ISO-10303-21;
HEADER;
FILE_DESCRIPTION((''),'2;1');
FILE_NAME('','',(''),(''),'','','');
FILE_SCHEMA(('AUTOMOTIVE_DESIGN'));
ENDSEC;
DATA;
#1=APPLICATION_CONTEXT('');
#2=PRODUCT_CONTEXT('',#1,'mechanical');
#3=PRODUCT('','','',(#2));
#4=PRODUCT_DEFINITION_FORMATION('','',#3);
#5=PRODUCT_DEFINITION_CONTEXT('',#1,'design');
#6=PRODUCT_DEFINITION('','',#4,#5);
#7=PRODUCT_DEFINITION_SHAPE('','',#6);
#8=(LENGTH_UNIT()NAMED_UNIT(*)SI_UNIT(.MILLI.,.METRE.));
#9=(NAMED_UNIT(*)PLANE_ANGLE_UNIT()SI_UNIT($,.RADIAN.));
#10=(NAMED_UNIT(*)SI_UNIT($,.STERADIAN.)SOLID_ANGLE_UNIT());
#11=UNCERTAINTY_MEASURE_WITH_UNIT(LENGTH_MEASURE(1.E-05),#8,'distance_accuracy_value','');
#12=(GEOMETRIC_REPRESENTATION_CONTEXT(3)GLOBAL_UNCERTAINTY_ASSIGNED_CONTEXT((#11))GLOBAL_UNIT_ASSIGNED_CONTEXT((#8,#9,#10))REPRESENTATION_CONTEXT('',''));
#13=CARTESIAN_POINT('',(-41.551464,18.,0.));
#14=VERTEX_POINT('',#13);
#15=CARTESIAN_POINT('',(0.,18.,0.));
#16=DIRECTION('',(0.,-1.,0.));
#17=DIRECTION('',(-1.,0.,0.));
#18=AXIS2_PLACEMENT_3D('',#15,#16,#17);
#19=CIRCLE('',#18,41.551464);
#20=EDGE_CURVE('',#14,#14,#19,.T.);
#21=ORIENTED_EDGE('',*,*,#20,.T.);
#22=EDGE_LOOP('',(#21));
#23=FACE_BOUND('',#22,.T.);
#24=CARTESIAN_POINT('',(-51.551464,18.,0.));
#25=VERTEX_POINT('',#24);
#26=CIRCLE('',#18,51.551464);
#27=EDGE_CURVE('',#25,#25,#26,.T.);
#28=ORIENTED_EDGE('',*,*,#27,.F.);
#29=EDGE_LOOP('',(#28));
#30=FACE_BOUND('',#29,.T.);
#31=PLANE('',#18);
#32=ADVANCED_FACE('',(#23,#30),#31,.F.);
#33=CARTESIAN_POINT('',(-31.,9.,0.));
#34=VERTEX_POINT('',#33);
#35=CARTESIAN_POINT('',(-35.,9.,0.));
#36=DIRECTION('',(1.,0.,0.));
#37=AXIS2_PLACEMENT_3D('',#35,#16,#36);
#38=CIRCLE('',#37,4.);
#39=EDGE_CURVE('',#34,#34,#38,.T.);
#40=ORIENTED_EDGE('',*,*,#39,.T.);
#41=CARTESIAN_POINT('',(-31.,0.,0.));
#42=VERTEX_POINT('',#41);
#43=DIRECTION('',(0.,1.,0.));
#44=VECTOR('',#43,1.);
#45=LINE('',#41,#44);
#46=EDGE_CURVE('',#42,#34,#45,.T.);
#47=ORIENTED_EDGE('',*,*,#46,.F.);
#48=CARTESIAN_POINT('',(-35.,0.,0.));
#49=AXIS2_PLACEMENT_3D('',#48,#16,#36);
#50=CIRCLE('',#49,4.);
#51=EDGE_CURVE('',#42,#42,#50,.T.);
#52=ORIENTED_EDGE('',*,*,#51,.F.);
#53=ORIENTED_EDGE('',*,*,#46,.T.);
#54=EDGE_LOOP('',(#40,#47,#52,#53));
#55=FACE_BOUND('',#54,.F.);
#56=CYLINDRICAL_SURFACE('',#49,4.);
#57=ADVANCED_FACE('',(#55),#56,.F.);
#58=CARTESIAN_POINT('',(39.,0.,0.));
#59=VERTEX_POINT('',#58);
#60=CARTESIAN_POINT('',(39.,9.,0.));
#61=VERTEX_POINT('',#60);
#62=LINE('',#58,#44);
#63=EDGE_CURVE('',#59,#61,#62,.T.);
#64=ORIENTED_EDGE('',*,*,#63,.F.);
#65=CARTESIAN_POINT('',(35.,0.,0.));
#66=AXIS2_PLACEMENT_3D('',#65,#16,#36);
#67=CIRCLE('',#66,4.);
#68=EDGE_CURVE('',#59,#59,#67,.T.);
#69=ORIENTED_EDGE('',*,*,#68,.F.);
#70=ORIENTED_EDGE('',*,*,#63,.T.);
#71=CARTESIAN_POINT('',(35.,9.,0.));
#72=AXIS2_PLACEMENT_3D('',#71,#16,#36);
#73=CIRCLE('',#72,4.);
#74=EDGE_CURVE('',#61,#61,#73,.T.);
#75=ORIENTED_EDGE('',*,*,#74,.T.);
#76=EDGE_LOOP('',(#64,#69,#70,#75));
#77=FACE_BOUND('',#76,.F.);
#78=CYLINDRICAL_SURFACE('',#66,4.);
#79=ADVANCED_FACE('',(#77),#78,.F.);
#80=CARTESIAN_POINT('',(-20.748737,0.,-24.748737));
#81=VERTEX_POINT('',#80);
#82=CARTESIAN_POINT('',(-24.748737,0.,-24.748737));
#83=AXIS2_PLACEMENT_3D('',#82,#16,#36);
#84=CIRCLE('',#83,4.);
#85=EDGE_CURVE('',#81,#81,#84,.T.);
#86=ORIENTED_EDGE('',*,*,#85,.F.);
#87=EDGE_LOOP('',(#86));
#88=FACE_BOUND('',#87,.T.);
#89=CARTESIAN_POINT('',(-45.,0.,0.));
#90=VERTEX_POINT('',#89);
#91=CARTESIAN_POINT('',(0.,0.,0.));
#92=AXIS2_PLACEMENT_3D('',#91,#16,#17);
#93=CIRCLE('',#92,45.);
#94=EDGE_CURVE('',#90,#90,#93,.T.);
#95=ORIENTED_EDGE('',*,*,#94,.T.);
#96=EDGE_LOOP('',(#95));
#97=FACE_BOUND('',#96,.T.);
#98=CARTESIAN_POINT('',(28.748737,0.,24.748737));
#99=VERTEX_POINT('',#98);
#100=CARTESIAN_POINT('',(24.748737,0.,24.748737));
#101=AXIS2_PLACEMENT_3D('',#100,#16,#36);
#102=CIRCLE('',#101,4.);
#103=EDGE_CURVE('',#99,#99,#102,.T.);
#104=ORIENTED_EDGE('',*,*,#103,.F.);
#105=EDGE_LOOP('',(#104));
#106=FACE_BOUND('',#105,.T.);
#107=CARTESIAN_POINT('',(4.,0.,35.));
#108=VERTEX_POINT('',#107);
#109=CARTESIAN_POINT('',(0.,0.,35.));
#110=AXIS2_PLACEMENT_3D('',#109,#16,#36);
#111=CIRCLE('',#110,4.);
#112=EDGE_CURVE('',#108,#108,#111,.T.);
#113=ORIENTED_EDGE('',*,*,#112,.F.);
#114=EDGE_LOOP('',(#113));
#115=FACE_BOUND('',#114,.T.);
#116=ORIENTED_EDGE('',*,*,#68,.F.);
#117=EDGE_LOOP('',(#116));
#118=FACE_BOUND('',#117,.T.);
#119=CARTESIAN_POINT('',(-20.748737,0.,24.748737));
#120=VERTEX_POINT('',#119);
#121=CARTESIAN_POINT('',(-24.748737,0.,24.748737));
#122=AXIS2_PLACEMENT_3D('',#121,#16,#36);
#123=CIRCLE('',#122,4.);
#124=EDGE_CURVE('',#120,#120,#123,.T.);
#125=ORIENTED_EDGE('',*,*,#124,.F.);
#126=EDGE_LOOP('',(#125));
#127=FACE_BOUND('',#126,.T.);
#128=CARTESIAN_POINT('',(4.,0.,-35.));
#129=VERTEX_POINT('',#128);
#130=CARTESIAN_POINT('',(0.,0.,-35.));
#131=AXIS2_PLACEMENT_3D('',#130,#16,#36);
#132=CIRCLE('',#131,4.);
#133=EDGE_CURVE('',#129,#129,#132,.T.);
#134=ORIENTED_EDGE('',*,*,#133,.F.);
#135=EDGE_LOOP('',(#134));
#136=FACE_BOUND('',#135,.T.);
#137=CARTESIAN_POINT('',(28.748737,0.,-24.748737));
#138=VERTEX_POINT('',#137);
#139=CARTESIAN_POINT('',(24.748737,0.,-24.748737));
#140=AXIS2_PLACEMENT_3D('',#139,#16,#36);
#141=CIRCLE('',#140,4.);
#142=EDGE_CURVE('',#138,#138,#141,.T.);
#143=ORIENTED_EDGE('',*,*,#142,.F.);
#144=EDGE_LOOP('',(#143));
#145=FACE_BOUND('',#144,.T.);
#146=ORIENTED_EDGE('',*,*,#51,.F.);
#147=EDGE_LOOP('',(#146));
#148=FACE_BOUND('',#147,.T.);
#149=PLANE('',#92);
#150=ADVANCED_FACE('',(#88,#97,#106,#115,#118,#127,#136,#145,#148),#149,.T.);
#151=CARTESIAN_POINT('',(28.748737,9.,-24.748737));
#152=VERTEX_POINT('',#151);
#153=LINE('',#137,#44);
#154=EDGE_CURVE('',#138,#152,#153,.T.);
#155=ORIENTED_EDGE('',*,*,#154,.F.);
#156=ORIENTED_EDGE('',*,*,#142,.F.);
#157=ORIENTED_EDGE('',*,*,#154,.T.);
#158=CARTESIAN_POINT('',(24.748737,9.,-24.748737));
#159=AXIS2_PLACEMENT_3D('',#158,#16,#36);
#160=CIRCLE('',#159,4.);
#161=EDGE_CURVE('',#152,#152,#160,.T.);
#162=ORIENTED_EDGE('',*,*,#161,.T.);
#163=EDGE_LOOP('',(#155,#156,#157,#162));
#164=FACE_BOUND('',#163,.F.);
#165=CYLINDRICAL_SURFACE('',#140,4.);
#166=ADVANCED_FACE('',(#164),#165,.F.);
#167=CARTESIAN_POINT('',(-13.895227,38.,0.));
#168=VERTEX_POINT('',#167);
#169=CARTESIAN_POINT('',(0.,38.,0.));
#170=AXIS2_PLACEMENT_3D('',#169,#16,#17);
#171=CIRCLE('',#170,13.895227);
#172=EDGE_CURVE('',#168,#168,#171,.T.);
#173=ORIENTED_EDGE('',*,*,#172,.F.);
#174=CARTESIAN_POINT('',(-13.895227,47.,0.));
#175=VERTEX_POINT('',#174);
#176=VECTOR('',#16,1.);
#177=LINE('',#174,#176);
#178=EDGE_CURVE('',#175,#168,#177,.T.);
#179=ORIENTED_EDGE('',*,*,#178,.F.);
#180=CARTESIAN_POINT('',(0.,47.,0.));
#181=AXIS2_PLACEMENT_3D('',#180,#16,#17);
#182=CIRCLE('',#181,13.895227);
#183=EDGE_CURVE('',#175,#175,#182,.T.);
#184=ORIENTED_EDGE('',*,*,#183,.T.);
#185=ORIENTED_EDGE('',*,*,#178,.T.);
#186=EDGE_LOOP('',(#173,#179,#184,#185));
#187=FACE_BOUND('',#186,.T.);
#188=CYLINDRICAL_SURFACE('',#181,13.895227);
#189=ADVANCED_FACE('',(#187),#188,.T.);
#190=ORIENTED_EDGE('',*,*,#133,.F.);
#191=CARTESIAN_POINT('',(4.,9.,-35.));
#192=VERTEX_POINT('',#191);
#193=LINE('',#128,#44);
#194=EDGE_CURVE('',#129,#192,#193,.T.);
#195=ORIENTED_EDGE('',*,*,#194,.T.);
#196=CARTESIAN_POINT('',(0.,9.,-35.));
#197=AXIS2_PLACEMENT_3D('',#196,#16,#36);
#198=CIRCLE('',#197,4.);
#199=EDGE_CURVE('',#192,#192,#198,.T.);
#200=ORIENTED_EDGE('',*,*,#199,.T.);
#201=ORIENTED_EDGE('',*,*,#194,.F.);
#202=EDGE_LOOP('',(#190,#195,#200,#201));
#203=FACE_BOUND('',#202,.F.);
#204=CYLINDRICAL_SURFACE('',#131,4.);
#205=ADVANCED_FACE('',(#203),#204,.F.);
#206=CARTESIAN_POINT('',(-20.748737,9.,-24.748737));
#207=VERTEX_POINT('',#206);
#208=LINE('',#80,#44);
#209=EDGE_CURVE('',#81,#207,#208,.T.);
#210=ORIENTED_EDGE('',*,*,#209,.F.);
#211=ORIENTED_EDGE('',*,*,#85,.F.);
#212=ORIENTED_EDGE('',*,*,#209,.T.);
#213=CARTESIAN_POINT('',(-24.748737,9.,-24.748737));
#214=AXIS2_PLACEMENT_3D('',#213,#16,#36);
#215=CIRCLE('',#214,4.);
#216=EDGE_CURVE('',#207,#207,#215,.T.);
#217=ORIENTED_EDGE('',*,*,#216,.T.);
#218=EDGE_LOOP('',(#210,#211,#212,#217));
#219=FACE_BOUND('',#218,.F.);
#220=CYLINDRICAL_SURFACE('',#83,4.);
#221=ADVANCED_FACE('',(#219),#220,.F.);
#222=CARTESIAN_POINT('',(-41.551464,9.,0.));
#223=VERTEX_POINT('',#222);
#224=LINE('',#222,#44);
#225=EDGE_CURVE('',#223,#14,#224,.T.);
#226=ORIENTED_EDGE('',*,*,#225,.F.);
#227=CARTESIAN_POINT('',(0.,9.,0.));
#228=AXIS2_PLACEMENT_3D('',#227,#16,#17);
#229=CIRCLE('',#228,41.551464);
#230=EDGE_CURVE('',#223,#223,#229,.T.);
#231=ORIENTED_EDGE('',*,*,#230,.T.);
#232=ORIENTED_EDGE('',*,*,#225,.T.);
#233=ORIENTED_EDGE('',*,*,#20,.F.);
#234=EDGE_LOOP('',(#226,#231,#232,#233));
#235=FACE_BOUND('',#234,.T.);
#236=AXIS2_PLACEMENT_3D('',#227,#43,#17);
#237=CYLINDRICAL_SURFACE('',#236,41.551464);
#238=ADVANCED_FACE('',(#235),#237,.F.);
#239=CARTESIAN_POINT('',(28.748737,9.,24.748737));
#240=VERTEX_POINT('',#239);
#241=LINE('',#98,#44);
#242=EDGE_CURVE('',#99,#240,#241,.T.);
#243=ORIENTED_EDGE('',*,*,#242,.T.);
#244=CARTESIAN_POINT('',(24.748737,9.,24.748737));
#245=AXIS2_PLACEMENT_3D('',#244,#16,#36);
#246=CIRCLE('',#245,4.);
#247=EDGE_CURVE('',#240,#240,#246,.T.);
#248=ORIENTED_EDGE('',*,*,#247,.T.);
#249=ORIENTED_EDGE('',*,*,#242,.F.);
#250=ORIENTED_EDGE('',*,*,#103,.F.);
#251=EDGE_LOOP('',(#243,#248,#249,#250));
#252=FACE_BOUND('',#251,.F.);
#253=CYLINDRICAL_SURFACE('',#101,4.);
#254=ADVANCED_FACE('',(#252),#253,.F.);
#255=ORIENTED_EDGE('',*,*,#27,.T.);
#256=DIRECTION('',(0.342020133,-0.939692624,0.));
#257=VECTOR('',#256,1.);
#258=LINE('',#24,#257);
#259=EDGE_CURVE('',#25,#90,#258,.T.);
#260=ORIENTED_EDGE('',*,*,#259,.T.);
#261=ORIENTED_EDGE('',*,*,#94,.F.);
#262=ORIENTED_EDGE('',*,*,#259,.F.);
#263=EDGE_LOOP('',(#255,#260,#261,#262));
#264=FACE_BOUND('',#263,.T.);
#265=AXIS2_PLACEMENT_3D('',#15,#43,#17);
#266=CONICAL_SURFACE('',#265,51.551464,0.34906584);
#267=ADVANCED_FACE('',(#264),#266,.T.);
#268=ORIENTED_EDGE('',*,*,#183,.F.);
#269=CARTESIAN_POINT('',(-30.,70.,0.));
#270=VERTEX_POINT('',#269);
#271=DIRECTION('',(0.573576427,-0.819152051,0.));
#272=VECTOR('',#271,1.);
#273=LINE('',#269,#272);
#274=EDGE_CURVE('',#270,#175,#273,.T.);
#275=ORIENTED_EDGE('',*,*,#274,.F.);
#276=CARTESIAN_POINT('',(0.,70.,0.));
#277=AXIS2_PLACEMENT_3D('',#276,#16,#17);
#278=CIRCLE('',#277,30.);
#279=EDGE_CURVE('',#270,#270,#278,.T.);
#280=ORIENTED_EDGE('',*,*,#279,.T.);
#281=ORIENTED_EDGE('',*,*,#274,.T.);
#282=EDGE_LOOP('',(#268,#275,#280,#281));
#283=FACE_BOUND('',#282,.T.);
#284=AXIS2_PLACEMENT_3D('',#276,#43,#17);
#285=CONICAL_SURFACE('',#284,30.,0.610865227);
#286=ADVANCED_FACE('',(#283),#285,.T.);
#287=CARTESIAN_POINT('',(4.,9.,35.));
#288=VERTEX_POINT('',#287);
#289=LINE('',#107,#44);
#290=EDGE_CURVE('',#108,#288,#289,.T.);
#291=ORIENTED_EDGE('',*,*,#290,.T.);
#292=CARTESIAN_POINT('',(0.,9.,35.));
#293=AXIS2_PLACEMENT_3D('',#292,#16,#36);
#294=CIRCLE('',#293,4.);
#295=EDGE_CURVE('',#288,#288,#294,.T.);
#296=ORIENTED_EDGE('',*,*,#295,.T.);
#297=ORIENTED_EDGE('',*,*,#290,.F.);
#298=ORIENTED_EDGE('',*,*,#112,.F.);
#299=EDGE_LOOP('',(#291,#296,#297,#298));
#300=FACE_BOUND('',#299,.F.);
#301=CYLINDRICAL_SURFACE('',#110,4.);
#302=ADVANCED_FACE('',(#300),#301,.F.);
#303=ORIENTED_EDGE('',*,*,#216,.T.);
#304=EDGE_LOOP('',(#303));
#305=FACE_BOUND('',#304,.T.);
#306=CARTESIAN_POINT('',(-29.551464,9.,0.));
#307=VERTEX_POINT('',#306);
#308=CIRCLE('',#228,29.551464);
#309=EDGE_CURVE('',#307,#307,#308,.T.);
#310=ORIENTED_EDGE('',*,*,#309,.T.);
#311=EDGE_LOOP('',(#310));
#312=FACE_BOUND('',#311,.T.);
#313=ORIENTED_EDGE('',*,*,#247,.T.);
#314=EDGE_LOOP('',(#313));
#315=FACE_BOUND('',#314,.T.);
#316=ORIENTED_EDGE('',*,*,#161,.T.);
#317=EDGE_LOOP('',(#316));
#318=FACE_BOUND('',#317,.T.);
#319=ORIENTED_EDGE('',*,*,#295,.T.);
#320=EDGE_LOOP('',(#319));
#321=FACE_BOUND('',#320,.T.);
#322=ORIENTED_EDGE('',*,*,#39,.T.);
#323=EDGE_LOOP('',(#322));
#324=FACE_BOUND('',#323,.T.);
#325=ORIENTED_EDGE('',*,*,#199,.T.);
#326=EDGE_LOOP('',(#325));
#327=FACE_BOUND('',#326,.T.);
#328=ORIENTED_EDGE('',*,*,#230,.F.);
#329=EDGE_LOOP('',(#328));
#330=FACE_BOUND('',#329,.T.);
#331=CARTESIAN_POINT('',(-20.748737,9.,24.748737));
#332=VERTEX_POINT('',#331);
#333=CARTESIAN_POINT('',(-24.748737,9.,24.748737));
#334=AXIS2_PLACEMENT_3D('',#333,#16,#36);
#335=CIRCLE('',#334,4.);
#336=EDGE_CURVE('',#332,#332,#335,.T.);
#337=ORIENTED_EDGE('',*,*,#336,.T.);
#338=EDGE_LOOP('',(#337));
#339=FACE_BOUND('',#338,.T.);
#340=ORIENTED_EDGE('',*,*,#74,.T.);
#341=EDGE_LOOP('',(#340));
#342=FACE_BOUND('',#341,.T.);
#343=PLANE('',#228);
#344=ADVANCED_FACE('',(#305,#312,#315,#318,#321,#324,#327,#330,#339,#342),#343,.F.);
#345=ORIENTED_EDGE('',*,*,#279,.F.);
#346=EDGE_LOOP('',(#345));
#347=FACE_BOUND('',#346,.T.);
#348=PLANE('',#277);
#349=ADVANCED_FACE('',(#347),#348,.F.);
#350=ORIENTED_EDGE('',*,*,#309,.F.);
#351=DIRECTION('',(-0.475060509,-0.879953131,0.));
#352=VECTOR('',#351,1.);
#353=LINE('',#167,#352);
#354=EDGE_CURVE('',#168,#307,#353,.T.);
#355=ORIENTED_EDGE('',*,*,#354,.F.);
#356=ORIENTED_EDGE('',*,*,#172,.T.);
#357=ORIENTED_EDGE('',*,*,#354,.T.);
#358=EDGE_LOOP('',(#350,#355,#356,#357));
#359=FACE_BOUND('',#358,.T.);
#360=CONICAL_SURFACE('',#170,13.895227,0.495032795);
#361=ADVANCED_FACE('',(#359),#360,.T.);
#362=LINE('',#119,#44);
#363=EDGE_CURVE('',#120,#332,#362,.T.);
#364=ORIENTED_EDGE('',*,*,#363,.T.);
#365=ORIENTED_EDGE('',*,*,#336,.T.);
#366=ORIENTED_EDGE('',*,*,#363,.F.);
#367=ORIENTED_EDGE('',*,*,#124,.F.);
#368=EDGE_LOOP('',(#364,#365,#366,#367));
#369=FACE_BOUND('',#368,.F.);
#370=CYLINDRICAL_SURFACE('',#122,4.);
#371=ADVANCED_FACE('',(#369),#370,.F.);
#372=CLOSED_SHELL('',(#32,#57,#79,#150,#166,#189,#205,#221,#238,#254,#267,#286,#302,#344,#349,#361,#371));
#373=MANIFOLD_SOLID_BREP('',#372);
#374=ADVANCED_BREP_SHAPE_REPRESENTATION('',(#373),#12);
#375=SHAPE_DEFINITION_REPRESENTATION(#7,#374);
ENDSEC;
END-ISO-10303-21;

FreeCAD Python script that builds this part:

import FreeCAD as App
import Part
import Sketcher
Q = App.Units.Quantity


def add_polygon(sketch, points):
    """Adds a closed chain of lines whose ends are joined by coincident constraints."""
    first, n = sketch.GeometryCount, len(points)
    for a, b in zip(points, points[1:] + points[:1]):
        sketch.addGeometry(Part.LineSegment(App.Vector(*a, 0), App.Vector(*b, 0)), False)
    for i in range(n):
        sketch.addConstraint(Sketcher.Constraint("Coincident", first + i, 2, first + (i + 1) % n, 1))

doc = App.newDocument("Part")
body = doc.addObject("PartDesign::Body", "Body")

sketch1 = body.newObject("Sketcher::SketchObject", "Sketch")
sketch1.AttachmentSupport = (doc.getObject("XY_Plane"), [""])
sketch1.MapMode = "FlatFace"
add_polygon(sketch1, [(-45, 0), (0, 0), (0, 70), (-30, 70), (-14, 47), (-14, 38), (-30, 9), (-42, 9), (-42, 18), (-52, 18)])
sketch1.addConstraint(Sketcher.Constraint("Horizontal", 0))
sketch1.addConstraint(Sketcher.Constraint("Vertical", 1))
sketch1.addConstraint(Sketcher.Constraint("Horizontal", 2))
sketch1.addConstraint(Sketcher.Constraint("Vertical", 4))
sketch1.addConstraint(Sketcher.Constraint("Horizontal", 6))
sketch1.addConstraint(Sketcher.Constraint("Vertical", 7))
sketch1.addConstraint(Sketcher.Constraint("Horizontal", 8))
sketch1.addConstraint(Sketcher.Constraint("Coincident", 0, 2, -1, 1))
sketch1.addConstraint(Sketcher.Constraint("Equal", 4, 7))
sketch1.addConstraint(Sketcher.Constraint("DistanceX", 0, 1, 0, 2, Q("45 mm")))
sketch1.addConstraint(Sketcher.Constraint("DistanceX", 2, 2, 2, 1, Q("30 mm")))
sketch1.addConstraint(Sketcher.Constraint("DistanceX", 6, 2, 6, 1, Q("12 mm")))
sketch1.addConstraint(Sketcher.Constraint("DistanceX", 8, 2, 8, 1, Q("10 mm")))
sketch1.addConstraint(Sketcher.Constraint("DistanceY", 1, 1, 1, 2, Q("70 mm")))
sketch1.addConstraint(Sketcher.Constraint("DistanceY", 4, 2, 4, 1, Q("9 mm")))
sketch1.addConstraint(Sketcher.Constraint("Angle", 3, Q("-55.000001 deg")))
sketch1.addConstraint(Sketcher.Constraint("Angle", 9, Q("-70.000001 deg")))
sketch1.addConstraint(Sketcher.Constraint("DistanceY", -1, 1, 3, 2, Q("47 mm")))
sketch1.addConstraint(Sketcher.Constraint("DistanceY", -1, 1, 5, 2, Q("9 mm")))
revolution = body.newObject("PartDesign::Revolution", "Revolution")
revolution.Profile = sketch1
revolution.ReferenceAxis = (sketch1, ["V_Axis"])
revolution.Angle = 360

sketch2 = body.newObject("Sketcher::SketchObject", "Sketch001")
sketch2.AttachmentSupport = (doc.getObject("XZ_Plane"), [""])
sketch2.MapMode = "FlatFace"
sketch2.addGeometry(Part.Circle(App.Vector(0, 35, 0), App.Vector(0, 0, 1), 4), False)
sketch2.addGeometry(Part.Circle(App.Vector(-24.7, 24.7, 0), App.Vector(0, 0, 1), 4), False)
sketch2.addGeometry(Part.Circle(App.Vector(-35, 0, 0), App.Vector(0, 0, 1), 4), False)
sketch2.addGeometry(Part.Circle(App.Vector(-24.7, -24.7, 0), App.Vector(0, 0, 1), 4), False)
sketch2.addGeometry(Part.Circle(App.Vector(0, -35, 0), App.Vector(0, 0, 1), 4), False)
sketch2.addGeometry(Part.Circle(App.Vector(24.7, -24.7, 0), App.Vector(0, 0, 1), 4), False)
sketch2.addGeometry(Part.Circle(App.Vector(35, 0, 0), App.Vector(0, 0, 1), 4), False)
sketch2.addGeometry(Part.Circle(App.Vector(24.7, 24.7, 0), App.Vector(0, 0, 1), 4), False)
sketch2.addConstraint(Sketcher.Constraint("Equal", 0, 1))
sketch2.addConstraint(Sketcher.Constraint("Equal", 1, 2))
sketch2.addConstraint(Sketcher.Constraint("Equal", 2, 3))
sketch2.addConstraint(Sketcher.Constraint("Equal", 3, 4))
sketch2.addConstraint(Sketcher.Constraint("Equal", 4, 5))
sketch2.addConstraint(Sketcher.Constraint("Equal", 5, 6))
sketch2.addConstraint(Sketcher.Constraint("Equal", 6, 7))
sketch2.addConstraint(Sketcher.Constraint("Symmetric", 0, 3, 4, 3, -1, 1))
sketch2.addConstraint(Sketcher.Constraint("Symmetric", 1, 3, 5, 3, -1, 1))
sketch2.addConstraint(Sketcher.Constraint("Symmetric", 2, 3, 6, 3, -1, 1))
sketch2.addConstraint(Sketcher.Constraint("Symmetric", 3, 3, 7, 3, -1, 1))
sketch2.addConstraint(Sketcher.Constraint("Symmetric", 3, 3, 5, 3, -2))
sketch2.addConstraint(Sketcher.Constraint("PointOnObject", 0, 3, -2))
sketch2.addConstraint(Sketcher.Constraint("PointOnObject", 2, 3, -1))
sketch2.addConstraint(Sketcher.Constraint("Diameter", 0, Q("8 mm")))
sketch2.addConstraint(Sketcher.Constraint("DistanceY", -1, 1, 0, 3, Q("35 mm")))
sketch2.addConstraint(Sketcher.Constraint("DistanceX", 2, 3, -1, 1, Q("35 mm")))
sketch2.addConstraint(Sketcher.Constraint("DistanceX", 1, 3, -1, 1, Q("24.748737 mm")))
sketch2.addConstraint(Sketcher.Constraint("DistanceY", -1, 1, 1, 3, Q("24.748737 mm")))
pocket1 = body.newObject("PartDesign::Pocket", "Pocket")
pocket1.Profile = sketch2
pocket1.Length = 25

doc.recompute()
